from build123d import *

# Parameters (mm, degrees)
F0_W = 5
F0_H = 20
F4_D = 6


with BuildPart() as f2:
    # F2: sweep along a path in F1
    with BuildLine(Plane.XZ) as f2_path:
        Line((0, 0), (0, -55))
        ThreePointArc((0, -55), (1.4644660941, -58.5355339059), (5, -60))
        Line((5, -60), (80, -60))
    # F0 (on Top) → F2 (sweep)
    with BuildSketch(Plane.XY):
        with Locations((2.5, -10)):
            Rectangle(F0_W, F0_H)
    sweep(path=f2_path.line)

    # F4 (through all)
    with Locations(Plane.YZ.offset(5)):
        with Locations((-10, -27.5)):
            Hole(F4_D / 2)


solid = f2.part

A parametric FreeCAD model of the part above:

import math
import FreeCAD as App
import Part
import Sketcher

V = App.Vector


def add_polygon(sketch, points):
    """Adds a closed chain of lines whose ends are joined by coincident constraints."""
    first, n = sketch.GeometryCount, len(points)
    for a, b in zip(points, points[1:] + points[:1]):
        sketch.addGeometry(Part.LineSegment(App.Vector(*a, 0), App.Vector(*b, 0)), False)
    for i in range(n):
        sketch.addConstraint(Sketcher.Constraint("Coincident", first + i, 2, first + (i + 1) % n, 1))

doc = App.newDocument("Part")
body = doc.addObject("PartDesign::Body", "Body")

sketch1 = body.newObject("Sketcher::SketchObject", "Sketch")
sketch1.AttachmentSupport = (doc.getObject("XY_Plane"), [""])
sketch1.MapMode = "FlatFace"
add_polygon(sketch1, [(0, 0), (0, -20), (5, -20), (5, 0)])
sketch1.addConstraint(Sketcher.Constraint("Vertical", 0))
sketch1.addConstraint(Sketcher.Constraint("Horizontal", 1))
sketch1.addConstraint(Sketcher.Constraint("Vertical", 2))
sketch1.addConstraint(Sketcher.Constraint("Horizontal", 3))
sketch1.addConstraint(Sketcher.Constraint("Coincident", 3, 2, -1, 1))
sketch1.addConstraint(Sketcher.Constraint("DistanceX", 1, 1, 1, 2, 5.0))
sketch1.addConstraint(Sketcher.Constraint("DistanceY", 0, 2, 0, 1, 20.0))

sketch2 = body.newObject("Sketcher::SketchObject", "Sketch001")
sketch2.AttachmentSupport = (doc.getObject("XZ_Plane"), [""])
sketch2.MapMode = "FlatFace"
sketch2.addGeometry(Part.LineSegment(V(0, 0, 0), V(0, -55, 0)), False)
sketch2.addGeometry(Part.ArcOfCircle(Part.Circle(V(5, -55, 0), V(0, 0, 1), 5), math.radians(180), math.radians(270)), False)
sketch2.addGeometry(Part.LineSegment(V(5, -60, 0), V(80, -60, 0)), False)
sketch2.addConstraint(Sketcher.Constraint("Tangent", 0, 2, 1, 1))
sketch2.addConstraint(Sketcher.Constraint("Tangent", 1, 2, 2, 1))
sketch2.addConstraint(Sketcher.Constraint("Vertical", 0))
sketch2.addConstraint(Sketcher.Constraint("Horizontal", 2))
sketch2.addConstraint(Sketcher.Constraint("Coincident", 0, 1, -1, 1))
sketch2.addConstraint(Sketcher.Constraint("Radius", 1, 5.0))
sketch2.addConstraint(Sketcher.Constraint("DistanceX", 2, 1, 2, 2, 75.0))
sketch2.addConstraint(Sketcher.Constraint("DistanceY", 0, 2, 0, 1, 55.0))
doc.recompute()

additivepipe = body.newObject("PartDesign::AdditivePipe", "AdditivePipe")
additivepipe.Profile = sketch1
additivepipe.Spine = (sketch2, ["Edge1", "Edge2", "Edge3"])

sketch3 = body.newObject("Sketcher::SketchObject", "Sketch002")
sketch3.AttachmentSupport = (doc.getObject("YZ_Plane"), [""])
sketch3.MapMode = "FlatFace"
sketch3.AttachmentOffset = App.Placement(V(0, 0, 5), App.Rotation())
sketch3.addGeometry(Part.Circle(V(-10, -27.5, 0), V(0, 0, 1), 3), False)
sketch3.addConstraint(Sketcher.Constraint("Diameter", 0, 6.0))
sketch3.addConstraint(Sketcher.Constraint("DistanceX", 0, 3, -1, 1, 10.0))
sketch3.addConstraint(Sketcher.Constraint("DistanceY", 0, 3, -1, 1, 27.5))
doc.recompute()
hole = body.newObject("PartDesign::Hole", "Hole")
hole.Profile = sketch3
hole.ThreadType = "None"
hole.Diameter = 6
hole.DepthType = "ThroughAll"

doc.recompute()
